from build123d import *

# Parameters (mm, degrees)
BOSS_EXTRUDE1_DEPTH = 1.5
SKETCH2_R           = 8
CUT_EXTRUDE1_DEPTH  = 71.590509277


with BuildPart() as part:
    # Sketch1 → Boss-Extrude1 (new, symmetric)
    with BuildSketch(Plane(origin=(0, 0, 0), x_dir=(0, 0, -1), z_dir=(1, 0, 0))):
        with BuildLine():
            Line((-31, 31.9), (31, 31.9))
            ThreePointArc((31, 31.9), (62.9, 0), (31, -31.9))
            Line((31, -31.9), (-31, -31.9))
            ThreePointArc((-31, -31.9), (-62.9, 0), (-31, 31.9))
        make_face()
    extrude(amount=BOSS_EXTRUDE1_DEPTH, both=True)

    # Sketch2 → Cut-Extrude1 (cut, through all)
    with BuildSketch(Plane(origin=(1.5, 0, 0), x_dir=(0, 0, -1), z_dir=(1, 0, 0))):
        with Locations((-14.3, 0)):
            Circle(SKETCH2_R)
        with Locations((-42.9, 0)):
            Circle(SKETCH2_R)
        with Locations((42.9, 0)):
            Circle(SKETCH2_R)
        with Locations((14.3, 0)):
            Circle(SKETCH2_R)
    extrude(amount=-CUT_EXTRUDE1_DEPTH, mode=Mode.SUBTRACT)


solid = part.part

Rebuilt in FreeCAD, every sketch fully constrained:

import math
import FreeCAD as App
import Part
import Sketcher
from FreeCAD import Vector

doc = App.newDocument("Part")
body = doc.addObject("PartDesign::Body", "Body")

# Sketch on YZ plane
sketch1 = doc.addObject("Sketcher::SketchObject", "Sketch")
body.addObject(sketch1)
sketch1.AttachmentSupport = (doc.YZ_Plane, [""])
sketch1.MapMode = "FlatFace"
sketch1.addGeometry([
    Part.LineSegment(Vector(31.9, -31, 0), Vector(31.9, 31, 0)),
    Part.ArcOfCircle(Part.Circle(Vector(0, 31, 0), Vector(0, 0, 1), 31.9), math.radians(0), math.radians(180)),
    Part.LineSegment(Vector(-31.9, 31, 0), Vector(-31.9, -31, 0)),
    Part.ArcOfCircle(Part.Circle(Vector(0, -31, 0), Vector(0, 0, 1), 31.9), math.radians(180), math.radians(360)),
], False)
sketch1.addConstraint([
    Sketcher.Constraint("Tangent", 0, 2, 1, 1),
    Sketcher.Constraint("Tangent", 1, 2, 2, 1),
    Sketcher.Constraint("Tangent", 2, 2, 3, 1),
    Sketcher.Constraint("Tangent", 3, 2, 0, 1),
    Sketcher.Constraint("Vertical", 0),
    Sketcher.Constraint("Vertical", 2),
    Sketcher.Constraint("Symmetric", 1, 3, 3, 3, -1, 1),
    Sketcher.Constraint("Radius", 1, 31.9),
    Sketcher.Constraint("DistanceY", 0, 1, 0, 2, 62.0),
])
pad1 = doc.addObject("PartDesign::Pad", "Pad")
body.addObject(pad1)
pad1.Profile = sketch1
pad1.Length = 3
pad1.Midplane = True

# Sketch on YZ plane
sketch2 = doc.addObject("Sketcher::SketchObject", "Sketch001")
body.addObject(sketch2)
sketch2.AttachmentSupport = (doc.YZ_Plane, [""])
sketch2.MapMode = "FlatFace"
sketch2.AttachmentOffset = App.Placement(Vector(0, 0, 1.5), App.Rotation())
sketch2.addGeometry([
    Part.Circle(Vector(0, 14.3, 0), Vector(0, 0, 1), 8),
    Part.Circle(Vector(0, 42.9, 0), Vector(0, 0, 1), 8),
    Part.Circle(Vector(0, -42.9, 0), Vector(0, 0, 1), 8),
    Part.Circle(Vector(0, -14.3, 0), Vector(0, 0, 1), 8),
], False)
sketch2.addConstraint([
    Sketcher.Constraint("Equal", 0, 1),
    Sketcher.Constraint("Equal", 1, 2),
    Sketcher.Constraint("Equal", 2, 3),
    Sketcher.Constraint("Symmetric", 1, 3, 2, 3, -1, 1),
    Sketcher.Constraint("Symmetric", 0, 3, 3, 3, -1, 1),
    Sketcher.Constraint("PointOnObject", 0, 3, -2),
    Sketcher.Constraint("PointOnObject", 1, 3, -2),
    Sketcher.Constraint("Diameter", 0, 16.0),
    Sketcher.Constraint("DistanceY", -1, 1, 0, 3, 14.3),
    Sketcher.Constraint("DistanceY", -1, 1, 1, 3, 42.9),
])
pocket1 = doc.addObject("PartDesign::Pocket", "Pocket")
body.addObject(pocket1)
pocket1.Profile = sketch2
pocket1.Type = "ThroughAll"

doc.recompute()
